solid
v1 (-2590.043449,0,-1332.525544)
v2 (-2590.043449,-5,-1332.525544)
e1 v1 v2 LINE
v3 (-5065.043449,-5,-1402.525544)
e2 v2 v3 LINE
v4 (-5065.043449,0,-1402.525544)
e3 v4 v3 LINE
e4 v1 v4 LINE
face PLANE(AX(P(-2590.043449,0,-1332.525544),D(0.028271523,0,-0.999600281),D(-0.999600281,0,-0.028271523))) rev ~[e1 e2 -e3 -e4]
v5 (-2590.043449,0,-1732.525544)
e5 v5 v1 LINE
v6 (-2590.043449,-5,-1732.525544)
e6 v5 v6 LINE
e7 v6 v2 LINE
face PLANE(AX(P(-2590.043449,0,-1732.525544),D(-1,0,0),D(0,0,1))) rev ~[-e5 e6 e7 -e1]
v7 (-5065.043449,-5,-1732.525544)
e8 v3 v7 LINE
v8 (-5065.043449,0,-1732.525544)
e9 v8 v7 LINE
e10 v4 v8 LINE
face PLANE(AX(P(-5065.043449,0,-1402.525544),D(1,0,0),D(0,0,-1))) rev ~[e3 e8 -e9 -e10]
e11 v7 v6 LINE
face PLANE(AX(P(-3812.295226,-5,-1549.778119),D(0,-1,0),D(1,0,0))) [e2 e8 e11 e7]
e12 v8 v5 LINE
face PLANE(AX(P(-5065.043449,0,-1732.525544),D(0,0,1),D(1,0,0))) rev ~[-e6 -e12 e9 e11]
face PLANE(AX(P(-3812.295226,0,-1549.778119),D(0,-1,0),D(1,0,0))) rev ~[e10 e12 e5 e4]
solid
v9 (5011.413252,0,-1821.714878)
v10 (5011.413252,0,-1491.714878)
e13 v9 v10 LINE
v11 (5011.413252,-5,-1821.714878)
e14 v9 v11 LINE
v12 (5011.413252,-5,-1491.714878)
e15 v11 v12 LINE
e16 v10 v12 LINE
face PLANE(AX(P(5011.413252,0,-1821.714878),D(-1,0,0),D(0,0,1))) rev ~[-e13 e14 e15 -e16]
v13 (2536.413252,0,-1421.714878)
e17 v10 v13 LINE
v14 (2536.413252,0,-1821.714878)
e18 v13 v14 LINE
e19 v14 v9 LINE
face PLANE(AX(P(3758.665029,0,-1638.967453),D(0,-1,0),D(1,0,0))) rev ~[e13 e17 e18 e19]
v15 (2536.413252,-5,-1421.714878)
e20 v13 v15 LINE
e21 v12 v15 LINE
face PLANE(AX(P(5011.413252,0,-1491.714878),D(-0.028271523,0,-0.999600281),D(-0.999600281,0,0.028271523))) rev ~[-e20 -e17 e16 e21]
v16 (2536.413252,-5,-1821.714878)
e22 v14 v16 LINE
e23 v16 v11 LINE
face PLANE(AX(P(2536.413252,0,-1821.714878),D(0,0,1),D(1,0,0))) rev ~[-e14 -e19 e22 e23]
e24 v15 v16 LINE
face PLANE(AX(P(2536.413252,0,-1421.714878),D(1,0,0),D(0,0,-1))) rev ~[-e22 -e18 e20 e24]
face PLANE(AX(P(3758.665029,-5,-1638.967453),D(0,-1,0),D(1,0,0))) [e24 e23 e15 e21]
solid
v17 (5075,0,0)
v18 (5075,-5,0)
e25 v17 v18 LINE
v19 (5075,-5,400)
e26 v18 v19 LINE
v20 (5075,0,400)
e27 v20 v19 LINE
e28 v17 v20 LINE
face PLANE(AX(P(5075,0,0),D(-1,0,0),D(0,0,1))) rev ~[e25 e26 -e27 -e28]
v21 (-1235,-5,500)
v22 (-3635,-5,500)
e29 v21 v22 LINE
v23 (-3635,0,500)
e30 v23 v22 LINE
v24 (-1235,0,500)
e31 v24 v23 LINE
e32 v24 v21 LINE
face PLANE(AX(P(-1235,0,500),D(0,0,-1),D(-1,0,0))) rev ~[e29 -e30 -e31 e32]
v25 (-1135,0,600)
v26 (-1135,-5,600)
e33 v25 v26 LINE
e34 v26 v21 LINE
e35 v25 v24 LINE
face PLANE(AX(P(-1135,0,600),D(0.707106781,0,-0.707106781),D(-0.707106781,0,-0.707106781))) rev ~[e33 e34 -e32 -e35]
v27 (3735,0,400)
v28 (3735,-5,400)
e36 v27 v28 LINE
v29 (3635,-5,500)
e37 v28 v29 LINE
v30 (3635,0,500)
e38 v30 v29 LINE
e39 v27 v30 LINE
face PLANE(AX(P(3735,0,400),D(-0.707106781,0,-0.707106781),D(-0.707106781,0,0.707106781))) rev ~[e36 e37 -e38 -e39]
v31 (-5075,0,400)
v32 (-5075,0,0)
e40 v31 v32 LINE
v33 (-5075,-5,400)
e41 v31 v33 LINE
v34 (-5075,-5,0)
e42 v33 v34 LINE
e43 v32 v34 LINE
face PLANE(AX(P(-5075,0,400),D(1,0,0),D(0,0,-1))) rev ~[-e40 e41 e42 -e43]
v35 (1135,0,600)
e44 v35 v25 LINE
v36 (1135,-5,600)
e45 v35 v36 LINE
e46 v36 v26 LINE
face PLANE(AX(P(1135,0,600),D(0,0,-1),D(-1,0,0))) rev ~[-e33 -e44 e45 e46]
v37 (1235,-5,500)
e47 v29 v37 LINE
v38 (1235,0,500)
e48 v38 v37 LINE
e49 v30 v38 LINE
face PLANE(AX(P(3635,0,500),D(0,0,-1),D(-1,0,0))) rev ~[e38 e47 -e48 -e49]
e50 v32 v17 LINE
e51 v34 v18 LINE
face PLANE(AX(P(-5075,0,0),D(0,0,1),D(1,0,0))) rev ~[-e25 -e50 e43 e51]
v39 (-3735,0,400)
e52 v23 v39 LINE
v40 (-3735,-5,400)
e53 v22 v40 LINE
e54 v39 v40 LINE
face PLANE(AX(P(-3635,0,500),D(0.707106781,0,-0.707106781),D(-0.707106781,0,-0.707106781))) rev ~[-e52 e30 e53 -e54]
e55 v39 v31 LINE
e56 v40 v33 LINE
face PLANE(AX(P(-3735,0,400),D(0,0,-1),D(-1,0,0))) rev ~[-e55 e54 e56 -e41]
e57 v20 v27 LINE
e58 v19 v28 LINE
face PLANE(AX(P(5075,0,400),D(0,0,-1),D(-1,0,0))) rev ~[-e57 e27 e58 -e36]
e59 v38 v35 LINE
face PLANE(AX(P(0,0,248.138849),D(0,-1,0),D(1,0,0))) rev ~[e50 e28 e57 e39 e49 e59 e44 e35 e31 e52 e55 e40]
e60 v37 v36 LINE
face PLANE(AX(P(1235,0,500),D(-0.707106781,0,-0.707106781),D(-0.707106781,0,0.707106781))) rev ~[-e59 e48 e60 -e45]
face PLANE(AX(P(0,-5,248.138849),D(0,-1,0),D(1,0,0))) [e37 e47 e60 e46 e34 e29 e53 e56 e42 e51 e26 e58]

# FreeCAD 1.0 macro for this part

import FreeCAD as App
import Part
import Sketcher

V = App.Vector
Q = App.Units.Quantity

doc = App.newDocument("Part")
body = doc.addObject("PartDesign::Body", "Body")
body.AllowCompound = True

# Sketch on XZ plane
sketch1 = body.newObject("Sketcher::SketchObject", "Sketch")
sketch1.AttachmentSupport = (doc.getObject("XZ_Plane"), [""])
sketch1.MapMode = "FlatFace"
sketch1.addGeometry([
    Part.LineSegment(V(-5075, 0, 0), V(5075, 0, 0)),  # 0
    Part.LineSegment(V(5075, 0, 0), V(5075, 400, 0)),  # 1
    Part.LineSegment(V(5075, 400, 0), V(3735, 400, 0)),  # 2
    Part.LineSegment(V(3735, 400, 0), V(3635, 500, 0)),  # 3
    Part.LineSegment(V(3635, 500, 0), V(1235, 500, 0)),  # 4
    Part.LineSegment(V(1235, 500, 0), V(1135, 600, 0)),  # 5
    Part.LineSegment(V(1135, 600, 0), V(-1135, 600, 0)),  # 6
    Part.LineSegment(V(-1135, 600, 0), V(-1235, 500, 0)),  # 7
    Part.LineSegment(V(-1235, 500, 0), V(-3635, 500, 0)),  # 8
    Part.LineSegment(V(-3635, 500, 0), V(-3735, 400, 0)),  # 9
    Part.LineSegment(V(-3735, 400, 0), V(-5075, 400, 0)),  # 10
    Part.LineSegment(V(-5075, 400, 0), V(-5075, 0, 0)),  # 11
    Part.LineSegment(V(-2590, -1333, 0), V(-5065, -1403, 0)),  # 12
    Part.LineSegment(V(-5065, -1403, 0), V(-5065, -1733, 0)),  # 13
    Part.LineSegment(V(-5065, -1733, 0), V(-2590, -1733, 0)),  # 14
    Part.LineSegment(V(-2590, -1733, 0), V(-2590, -1333, 0)),  # 15
    Part.LineSegment(V(2536, -1422, 0), V(2536, -1822, 0)),  # 16
    Part.LineSegment(V(2536, -1822, 0), V(5011, -1822, 0)),  # 17
    Part.LineSegment(V(5011, -1822, 0), V(5011, -1492, 0)),  # 18
    Part.LineSegment(V(5011, -1492, 0), V(2536, -1422, 0)),  # 19
], False)
sketch1.addConstraint([
    Sketcher.Constraint("Coincident", 0, 2, 1, 1),
    Sketcher.Constraint("Coincident", 1, 2, 2, 1),
    Sketcher.Constraint("Coincident", 2, 2, 3, 1),
    Sketcher.Constraint("Coincident", 3, 2, 4, 1),
    Sketcher.Constraint("Coincident", 4, 2, 5, 1),
    Sketcher.Constraint("Coincident", 5, 2, 6, 1),
    Sketcher.Constraint("Coincident", 6, 2, 7, 1),
    Sketcher.Constraint("Coincident", 7, 2, 8, 1),
    Sketcher.Constraint("Coincident", 8, 2, 9, 1),
    Sketcher.Constraint("Coincident", 9, 2, 10, 1),
    Sketcher.Constraint("Coincident", 10, 2, 11, 1),
    Sketcher.Constraint("Coincident", 11, 2, 0, 1),
    Sketcher.Constraint("Coincident", 12, 2, 13, 1),
    Sketcher.Constraint("Coincident", 13, 2, 14, 1),
    Sketcher.Constraint("Coincident", 14, 2, 15, 1),
    Sketcher.Constraint("Coincident", 15, 2, 12, 1),
    Sketcher.Constraint("Coincident", 16, 2, 17, 1),
    Sketcher.Constraint("Coincident", 17, 2, 18, 1),
    Sketcher.Constraint("Coincident", 18, 2, 19, 1),
    Sketcher.Constraint("Coincident", 19, 2, 16, 1),
    Sketcher.Constraint("Horizontal", 0),
    Sketcher.Constraint("Vertical", 1),
    Sketcher.Constraint("Horizontal", 2),
    Sketcher.Constraint("Horizontal", 4),
    Sketcher.Constraint("Horizontal", 6),
    Sketcher.Constraint("Horizontal", 8),
    Sketcher.Constraint("Horizontal", 10),
    Sketcher.Constraint("Vertical", 11),
    Sketcher.Constraint("Vertical", 13),
    Sketcher.Constraint("Horizontal", 14),
    Sketcher.Constraint("Vertical", 15),
    Sketcher.Constraint("Vertical", 16),
    Sketcher.Constraint("Horizontal", 17),
    Sketcher.Constraint("Vertical", 18),
    Sketcher.Constraint("Symmetric", 0, 2, 11, 2, -1, 1),
    Sketcher.Constraint("Symmetric", 4, 2, 7, 2, -2),
    Sketcher.Constraint("Symmetric", 2, 2, 9, 2, -2),
    Sketcher.Constraint("Parallel", 3, 5),
    Sketcher.Constraint("Perpendicular", 5, 7),
    Sketcher.Constraint("Parallel", 7, 9),
    Sketcher.Constraint("Equal", 4, 8),
    Sketcher.Constraint("Equal", 14, 17),
    Sketcher.Constraint("Equal", 11, 15),
    Sketcher.Constraint("Equal", 15, 16),
    Sketcher.Constraint("Equal", 13, 18),
    Sketcher.Constraint("Equal", 3, 5),
    Sketcher.Constraint("DistanceX", 0, 1, 0, 2, Q("10150 mm")),
    Sketcher.Constraint("DistanceX", 2, 2, 2, 1, Q("1340 mm")),
    Sketcher.Constraint("DistanceX", 4, 2, 4, 1, Q("2400 mm")),
    Sketcher.Constraint("DistanceX", 6, 2, 6, 1, Q("2270 mm")),
    Sketcher.Constraint("DistanceX", 14, 1, 14, 2, Q("2475 mm")),
    Sketcher.Constraint("DistanceY", 1, 1, 1, 2, Q("400 mm")),
    Sketcher.Constraint("DistanceY", 13, 2, 13, 1, Q("330 mm")),
    Sketcher.Constraint("DistanceX", 12, 2, -1, 1, Q("5065.043449 mm")),
    Sketcher.Constraint("DistanceX", -1, 1, 16, 2, Q("2536.413252 mm")),
    Sketcher.Constraint("DistanceY", 16, 2, -1, 1, Q("1821.714878 mm")),
    Sketcher.Constraint("DistanceY", 12, 2, -1, 1, Q("1402.525544 mm")),
])
pad1 = body.newObject("PartDesign::Pad", "Pad")
pad1.Profile = sketch1
pad1.Length = 5

doc.recompute()
